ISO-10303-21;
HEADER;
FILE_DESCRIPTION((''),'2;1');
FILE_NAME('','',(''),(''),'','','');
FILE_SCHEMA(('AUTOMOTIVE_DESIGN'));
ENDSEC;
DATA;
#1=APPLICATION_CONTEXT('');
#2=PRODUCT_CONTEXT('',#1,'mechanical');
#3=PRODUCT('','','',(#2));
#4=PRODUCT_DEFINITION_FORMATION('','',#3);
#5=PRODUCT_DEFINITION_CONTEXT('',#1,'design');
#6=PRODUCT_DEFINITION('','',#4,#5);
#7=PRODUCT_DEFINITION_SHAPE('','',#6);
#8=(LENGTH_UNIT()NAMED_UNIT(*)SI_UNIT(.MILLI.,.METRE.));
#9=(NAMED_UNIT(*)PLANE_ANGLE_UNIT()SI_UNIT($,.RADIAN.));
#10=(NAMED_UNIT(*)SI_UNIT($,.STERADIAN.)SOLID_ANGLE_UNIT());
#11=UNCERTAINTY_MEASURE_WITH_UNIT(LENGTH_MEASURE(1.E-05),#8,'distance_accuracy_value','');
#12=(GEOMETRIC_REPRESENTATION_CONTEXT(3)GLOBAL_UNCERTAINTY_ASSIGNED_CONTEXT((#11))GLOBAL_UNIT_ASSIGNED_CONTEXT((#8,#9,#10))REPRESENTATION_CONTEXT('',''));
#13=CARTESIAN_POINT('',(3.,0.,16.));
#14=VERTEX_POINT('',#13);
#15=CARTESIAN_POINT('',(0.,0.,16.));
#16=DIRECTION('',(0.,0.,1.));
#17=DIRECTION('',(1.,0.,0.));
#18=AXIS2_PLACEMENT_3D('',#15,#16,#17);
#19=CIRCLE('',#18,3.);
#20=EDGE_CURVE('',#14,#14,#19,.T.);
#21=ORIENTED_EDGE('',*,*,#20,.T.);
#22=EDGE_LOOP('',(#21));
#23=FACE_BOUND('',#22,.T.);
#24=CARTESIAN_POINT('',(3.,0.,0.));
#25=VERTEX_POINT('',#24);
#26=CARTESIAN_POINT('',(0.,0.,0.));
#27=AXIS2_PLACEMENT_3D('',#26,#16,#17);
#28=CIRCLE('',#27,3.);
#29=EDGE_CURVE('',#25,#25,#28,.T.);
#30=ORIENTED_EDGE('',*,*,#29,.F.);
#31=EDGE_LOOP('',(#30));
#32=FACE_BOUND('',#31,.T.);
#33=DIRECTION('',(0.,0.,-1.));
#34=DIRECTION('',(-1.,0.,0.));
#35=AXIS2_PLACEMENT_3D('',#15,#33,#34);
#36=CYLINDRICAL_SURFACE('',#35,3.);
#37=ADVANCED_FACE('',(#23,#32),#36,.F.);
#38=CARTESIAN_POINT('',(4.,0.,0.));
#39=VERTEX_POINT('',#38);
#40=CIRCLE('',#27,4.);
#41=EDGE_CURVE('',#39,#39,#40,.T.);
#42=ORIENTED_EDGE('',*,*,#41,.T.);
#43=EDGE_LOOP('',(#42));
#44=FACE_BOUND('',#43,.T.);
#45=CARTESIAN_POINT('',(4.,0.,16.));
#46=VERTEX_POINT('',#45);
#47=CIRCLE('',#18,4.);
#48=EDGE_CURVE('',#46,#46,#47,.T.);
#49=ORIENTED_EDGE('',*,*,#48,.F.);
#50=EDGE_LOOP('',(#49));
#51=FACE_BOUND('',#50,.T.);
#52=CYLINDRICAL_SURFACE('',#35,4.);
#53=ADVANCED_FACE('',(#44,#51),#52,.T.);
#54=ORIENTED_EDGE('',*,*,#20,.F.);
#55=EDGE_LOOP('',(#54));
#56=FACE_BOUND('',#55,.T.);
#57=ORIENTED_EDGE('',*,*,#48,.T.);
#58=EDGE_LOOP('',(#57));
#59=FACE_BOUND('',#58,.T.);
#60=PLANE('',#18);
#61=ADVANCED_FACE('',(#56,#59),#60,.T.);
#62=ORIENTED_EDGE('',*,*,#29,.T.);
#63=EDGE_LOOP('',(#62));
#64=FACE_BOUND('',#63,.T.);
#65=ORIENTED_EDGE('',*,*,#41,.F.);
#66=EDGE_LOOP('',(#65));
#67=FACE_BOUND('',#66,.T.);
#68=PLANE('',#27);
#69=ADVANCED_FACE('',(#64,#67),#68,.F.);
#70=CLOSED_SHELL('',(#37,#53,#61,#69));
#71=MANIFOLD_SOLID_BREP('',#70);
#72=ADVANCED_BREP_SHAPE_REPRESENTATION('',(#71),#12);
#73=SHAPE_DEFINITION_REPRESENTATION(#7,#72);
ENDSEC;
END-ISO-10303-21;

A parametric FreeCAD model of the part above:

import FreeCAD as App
import Part
import Sketcher

V = App.Vector
Q = App.Units.Quantity

doc = App.newDocument("Part")
params = doc.addObject("Spreadsheet::Sheet", "Params")
for row, (alias, value) in enumerate([
    ("sketch1_diameter", "8 mm"),
    ("sketch1_diameter2", "6 mm"),
    ("pad1_length", "16 mm"),
], start=1):
    params.set(f"A{row}", alias)
    params.set(f"B{row}", "=" + value)
    params.setAlias(f"B{row}", alias)

body = doc.addObject("PartDesign::Body", "Body")

# Sketch on XY plane
sketch1 = body.newObject("Sketcher::SketchObject", "Sketch")
sketch1.AttachmentSupport = (doc.getObject("XY_Plane"), [""])
sketch1.MapMode = "FlatFace"
sketch1.addGeometry([
    Part.Circle(V(0, 0, 0), V(0, 0, 1), 4),
    Part.Circle(V(0, 0, 0), V(0, 0, 1), 3),
], False)
sketch1.addConstraint([
    Sketcher.Constraint("Coincident", 0, 3, -1, 1),
    Sketcher.Constraint("Coincident", 1, 3, -1, 1),
    Sketcher.Constraint("Diameter", 0, Q("8 mm")),
    Sketcher.Constraint("Diameter", 1, Q("6 mm")),
])
sketch1.setExpression("Constraints[2]", "Params.sketch1_diameter")
sketch1.setExpression("Constraints[3]", "Params.sketch1_diameter2")
pad1 = body.newObject("PartDesign::Pad", "Pad")
pad1.Profile = sketch1
pad1.setExpression("Length", "Params.pad1_length")

doc.recompute()
